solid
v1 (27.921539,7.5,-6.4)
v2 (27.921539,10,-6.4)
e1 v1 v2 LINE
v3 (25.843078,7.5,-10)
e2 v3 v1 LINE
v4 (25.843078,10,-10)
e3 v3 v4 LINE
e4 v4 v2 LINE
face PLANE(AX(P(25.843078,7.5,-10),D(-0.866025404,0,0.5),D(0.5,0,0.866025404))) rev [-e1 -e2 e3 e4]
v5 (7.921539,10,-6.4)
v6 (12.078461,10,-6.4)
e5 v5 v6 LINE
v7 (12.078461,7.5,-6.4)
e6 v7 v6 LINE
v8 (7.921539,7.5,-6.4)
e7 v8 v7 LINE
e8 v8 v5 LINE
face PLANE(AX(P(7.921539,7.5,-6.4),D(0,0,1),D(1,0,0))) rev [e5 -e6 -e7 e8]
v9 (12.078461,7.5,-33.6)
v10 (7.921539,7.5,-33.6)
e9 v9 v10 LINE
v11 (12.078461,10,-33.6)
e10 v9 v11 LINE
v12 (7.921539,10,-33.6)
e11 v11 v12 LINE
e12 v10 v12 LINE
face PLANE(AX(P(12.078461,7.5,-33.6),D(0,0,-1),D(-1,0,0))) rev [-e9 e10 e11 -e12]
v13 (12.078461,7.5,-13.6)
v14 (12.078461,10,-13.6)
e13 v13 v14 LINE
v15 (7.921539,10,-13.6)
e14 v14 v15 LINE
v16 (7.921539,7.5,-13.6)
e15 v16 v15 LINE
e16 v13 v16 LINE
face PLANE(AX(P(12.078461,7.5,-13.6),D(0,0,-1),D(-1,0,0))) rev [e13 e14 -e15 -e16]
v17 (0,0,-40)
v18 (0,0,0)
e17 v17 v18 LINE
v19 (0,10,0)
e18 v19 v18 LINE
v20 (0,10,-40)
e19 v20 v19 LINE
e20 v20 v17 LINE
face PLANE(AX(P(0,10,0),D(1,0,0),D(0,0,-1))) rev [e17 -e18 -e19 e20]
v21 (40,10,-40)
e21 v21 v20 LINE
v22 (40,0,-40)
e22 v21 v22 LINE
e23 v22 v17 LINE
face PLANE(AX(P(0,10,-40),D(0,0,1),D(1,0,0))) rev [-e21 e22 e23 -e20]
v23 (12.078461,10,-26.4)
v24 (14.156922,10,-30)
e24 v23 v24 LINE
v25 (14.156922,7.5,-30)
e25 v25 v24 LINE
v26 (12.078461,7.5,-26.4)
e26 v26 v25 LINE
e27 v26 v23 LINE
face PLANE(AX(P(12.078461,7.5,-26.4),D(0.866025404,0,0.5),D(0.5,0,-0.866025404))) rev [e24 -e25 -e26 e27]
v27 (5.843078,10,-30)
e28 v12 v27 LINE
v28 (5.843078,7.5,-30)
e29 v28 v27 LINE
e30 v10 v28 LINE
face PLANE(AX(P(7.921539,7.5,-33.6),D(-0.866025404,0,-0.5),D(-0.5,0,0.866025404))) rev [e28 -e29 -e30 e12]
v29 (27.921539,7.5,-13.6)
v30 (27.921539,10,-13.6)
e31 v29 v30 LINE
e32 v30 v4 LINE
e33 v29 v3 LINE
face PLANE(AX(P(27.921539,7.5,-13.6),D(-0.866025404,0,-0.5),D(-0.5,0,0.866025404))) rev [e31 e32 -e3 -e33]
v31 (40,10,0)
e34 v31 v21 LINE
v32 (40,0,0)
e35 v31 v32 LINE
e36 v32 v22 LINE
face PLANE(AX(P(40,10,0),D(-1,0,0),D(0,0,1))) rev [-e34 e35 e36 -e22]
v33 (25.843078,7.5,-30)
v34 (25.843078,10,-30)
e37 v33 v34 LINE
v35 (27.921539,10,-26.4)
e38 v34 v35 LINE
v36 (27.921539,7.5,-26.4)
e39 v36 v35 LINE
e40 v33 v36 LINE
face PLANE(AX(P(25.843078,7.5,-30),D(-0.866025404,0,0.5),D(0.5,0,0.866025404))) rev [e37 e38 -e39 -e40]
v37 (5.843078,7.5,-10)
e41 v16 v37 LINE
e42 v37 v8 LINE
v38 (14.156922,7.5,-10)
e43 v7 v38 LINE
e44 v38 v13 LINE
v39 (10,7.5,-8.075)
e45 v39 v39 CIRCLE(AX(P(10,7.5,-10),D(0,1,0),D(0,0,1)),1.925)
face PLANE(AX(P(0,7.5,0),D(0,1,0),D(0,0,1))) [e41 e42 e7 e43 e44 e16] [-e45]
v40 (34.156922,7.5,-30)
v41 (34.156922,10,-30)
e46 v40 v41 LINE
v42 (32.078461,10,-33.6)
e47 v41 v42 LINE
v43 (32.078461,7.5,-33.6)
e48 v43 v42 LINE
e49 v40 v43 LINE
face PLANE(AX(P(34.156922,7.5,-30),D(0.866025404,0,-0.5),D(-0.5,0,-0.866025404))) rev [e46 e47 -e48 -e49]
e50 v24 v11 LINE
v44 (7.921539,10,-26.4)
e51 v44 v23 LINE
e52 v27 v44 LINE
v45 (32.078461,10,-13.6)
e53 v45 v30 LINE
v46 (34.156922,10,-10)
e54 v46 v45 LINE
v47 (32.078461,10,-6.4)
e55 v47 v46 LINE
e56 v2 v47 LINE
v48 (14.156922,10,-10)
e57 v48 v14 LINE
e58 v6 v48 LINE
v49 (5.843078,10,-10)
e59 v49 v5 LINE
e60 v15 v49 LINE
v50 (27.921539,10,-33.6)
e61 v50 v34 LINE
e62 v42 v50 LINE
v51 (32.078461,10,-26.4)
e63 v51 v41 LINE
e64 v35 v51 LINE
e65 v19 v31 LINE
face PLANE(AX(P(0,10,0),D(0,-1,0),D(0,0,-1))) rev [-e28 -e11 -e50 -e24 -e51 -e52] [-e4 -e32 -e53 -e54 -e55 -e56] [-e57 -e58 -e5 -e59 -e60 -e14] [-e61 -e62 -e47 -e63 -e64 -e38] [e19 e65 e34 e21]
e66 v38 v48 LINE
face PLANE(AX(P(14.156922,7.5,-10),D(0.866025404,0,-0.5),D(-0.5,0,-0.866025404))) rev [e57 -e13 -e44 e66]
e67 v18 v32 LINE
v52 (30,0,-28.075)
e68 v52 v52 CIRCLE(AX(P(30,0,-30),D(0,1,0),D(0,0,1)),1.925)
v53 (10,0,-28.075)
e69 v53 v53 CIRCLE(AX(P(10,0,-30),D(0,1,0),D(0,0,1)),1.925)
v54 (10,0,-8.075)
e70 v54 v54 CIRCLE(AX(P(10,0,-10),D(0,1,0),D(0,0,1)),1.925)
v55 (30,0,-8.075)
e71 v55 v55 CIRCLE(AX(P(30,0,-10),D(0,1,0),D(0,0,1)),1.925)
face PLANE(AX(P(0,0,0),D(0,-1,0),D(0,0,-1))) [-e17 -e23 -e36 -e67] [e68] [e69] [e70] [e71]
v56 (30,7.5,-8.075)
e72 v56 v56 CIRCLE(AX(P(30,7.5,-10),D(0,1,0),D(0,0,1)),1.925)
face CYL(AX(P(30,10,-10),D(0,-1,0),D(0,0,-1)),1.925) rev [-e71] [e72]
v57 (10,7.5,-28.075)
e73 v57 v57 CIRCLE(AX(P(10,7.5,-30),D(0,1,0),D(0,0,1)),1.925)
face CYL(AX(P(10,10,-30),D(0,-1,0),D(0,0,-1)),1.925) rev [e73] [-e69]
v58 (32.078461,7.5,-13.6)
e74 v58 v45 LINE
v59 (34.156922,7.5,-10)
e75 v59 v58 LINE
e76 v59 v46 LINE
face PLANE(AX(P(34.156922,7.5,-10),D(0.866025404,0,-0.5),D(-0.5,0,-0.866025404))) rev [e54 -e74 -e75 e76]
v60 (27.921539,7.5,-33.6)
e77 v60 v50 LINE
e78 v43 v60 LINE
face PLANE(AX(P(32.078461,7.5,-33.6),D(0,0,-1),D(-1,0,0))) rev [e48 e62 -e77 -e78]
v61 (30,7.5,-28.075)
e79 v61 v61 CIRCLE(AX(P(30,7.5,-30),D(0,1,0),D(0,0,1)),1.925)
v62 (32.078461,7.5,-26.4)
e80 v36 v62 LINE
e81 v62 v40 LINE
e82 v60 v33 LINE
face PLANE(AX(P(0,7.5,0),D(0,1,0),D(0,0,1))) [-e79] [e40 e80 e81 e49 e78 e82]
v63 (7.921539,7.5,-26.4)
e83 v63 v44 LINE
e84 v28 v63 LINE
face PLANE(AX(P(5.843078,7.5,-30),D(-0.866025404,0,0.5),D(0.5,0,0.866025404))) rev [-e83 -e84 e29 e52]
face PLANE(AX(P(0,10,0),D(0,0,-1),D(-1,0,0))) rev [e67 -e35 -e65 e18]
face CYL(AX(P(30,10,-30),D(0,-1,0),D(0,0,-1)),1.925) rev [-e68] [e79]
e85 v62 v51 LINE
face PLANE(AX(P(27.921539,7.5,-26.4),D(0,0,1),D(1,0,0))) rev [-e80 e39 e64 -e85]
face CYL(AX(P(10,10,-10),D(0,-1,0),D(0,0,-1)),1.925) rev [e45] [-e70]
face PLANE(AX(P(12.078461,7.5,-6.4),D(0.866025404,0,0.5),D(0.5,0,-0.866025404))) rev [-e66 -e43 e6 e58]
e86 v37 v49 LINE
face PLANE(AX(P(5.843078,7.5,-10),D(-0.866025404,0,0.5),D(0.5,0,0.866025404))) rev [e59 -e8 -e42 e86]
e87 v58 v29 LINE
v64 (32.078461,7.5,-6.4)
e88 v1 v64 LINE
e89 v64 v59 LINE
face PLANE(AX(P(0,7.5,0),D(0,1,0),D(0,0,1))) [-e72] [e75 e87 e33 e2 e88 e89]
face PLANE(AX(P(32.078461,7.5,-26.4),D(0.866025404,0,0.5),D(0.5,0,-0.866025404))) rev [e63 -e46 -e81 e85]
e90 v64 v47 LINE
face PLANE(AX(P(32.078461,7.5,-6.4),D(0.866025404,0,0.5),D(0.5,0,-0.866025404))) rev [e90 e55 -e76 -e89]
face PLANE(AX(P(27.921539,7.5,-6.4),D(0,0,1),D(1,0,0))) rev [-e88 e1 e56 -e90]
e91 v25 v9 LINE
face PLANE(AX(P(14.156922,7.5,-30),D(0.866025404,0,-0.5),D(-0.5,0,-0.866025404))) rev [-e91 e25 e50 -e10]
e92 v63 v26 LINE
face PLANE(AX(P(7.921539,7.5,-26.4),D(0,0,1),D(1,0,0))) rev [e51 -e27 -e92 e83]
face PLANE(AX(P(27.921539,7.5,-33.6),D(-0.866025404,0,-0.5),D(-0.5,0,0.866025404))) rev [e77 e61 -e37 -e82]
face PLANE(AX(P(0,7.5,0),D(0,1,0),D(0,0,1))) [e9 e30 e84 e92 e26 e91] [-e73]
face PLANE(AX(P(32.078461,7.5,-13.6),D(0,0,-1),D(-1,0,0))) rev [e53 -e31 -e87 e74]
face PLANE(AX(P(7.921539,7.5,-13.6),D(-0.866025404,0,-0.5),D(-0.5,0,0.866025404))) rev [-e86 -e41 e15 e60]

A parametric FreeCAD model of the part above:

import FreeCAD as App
import Part
import Sketcher

V = App.Vector
Q = App.Units.Quantity

doc = App.newDocument("Part")
body = doc.addObject("PartDesign::Body", "Body")

sketch1 = doc.addObject("Sketcher::SketchObject", "Sketch")
body.addObject(sketch1)
sketch1.AttachmentSupport = (doc.XZ_Plane, [""])
sketch1.MapMode = "FlatFace"
sketch1.addGeometry(Part.LineSegment(V(0, -40, 0), V(0, 0, 0)), False)
sketch1.addGeometry(Part.LineSegment(V(0, 0, 0), V(40, 0, 0)), False)
sketch1.addGeometry(Part.LineSegment(V(40, 0, 0), V(40, -40, 0)), False)
sketch1.addGeometry(Part.LineSegment(V(40, -40, 0), V(0, -40, 0)), False)
sketch1.addGeometry(Part.Circle(V(10, -10, 0), V(0, 0, 1), 1.9), False)
sketch1.addGeometry(Part.Circle(V(30, -10, 0), V(0, 0, 1), 1.9), False)
sketch1.addGeometry(Part.Circle(V(10, -30, 0), V(0, 0, 1), 1.9), False)
sketch1.addGeometry(Part.Circle(V(30, -30, 0), V(0, 0, 1), 1.9), False)
sketch1.addConstraint(Sketcher.Constraint("Coincident", 0, 2, 1, 1))
sketch1.addConstraint(Sketcher.Constraint("Coincident", 1, 2, 2, 1))
sketch1.addConstraint(Sketcher.Constraint("Coincident", 2, 2, 3, 1))
sketch1.addConstraint(Sketcher.Constraint("Coincident", 3, 2, 0, 1))
sketch1.addConstraint(Sketcher.Constraint("Vertical", 0))
sketch1.addConstraint(Sketcher.Constraint("Horizontal", 1))
sketch1.addConstraint(Sketcher.Constraint("Vertical", 2))
sketch1.addConstraint(Sketcher.Constraint("Horizontal", 3))
sketch1.addConstraint(Sketcher.Constraint("Coincident", 0, 2, -1, 1))
sketch1.addConstraint(Sketcher.Constraint("Equal", 4, 5))
sketch1.addConstraint(Sketcher.Constraint("Equal", 5, 6))
sketch1.addConstraint(Sketcher.Constraint("Equal", 6, 7))
sketch1.addConstraint(Sketcher.Constraint("Horizontal", 4, 3, 5, 3))
sketch1.addConstraint(Sketcher.Constraint("Horizontal", 6, 3, 7, 3))
sketch1.addConstraint(Sketcher.Constraint("Vertical", 4, 3, 6, 3))
sketch1.addConstraint(Sketcher.Constraint("Vertical", 5, 3, 7, 3))
sketch1.addConstraint(Sketcher.Constraint("Equal", 3, 0))
sketch1.addConstraint(Sketcher.Constraint("Diameter", 4, 3.85))
sketch1.addConstraint(Sketcher.Constraint("DistanceX", 1, 1, 1, 2, 40.0))
sketch1.addConstraint(Sketcher.Constraint("DistanceX", -1, 1, 4, 3, 10.0))
sketch1.addConstraint(Sketcher.Constraint("DistanceY", 4, 3, -1, 1, 10.0))
sketch1.addConstraint(Sketcher.Constraint("DistanceX", -1, 1, 5, 3, 30.0))
sketch1.addConstraint(Sketcher.Constraint("DistanceY", 6, 3, -1, 1, 30.0))
pad1 = doc.addObject("PartDesign::Pad", "Pad")
body.addObject(pad1)
pad1.Profile = sketch1
pad1.Length = 10
pad1.Reversed = True

sketch2 = doc.addObject("Sketcher::SketchObject", "Sketch001")
body.addObject(sketch2)
sketch2.AttachmentSupport = (doc.XZ_Plane, [""])
sketch2.MapMode = "FlatFace"
sketch2.AttachmentOffset = App.Placement(V(0, 0, -10), App.Rotation())
sketch2.addGeometry(Part.LineSegment(V(14.2, -10, 0), V(12.1, -13.6, 0)), False)
sketch2.addGeometry(Part.LineSegment(V(12.1, -13.6, 0), V(7.9, -13.6, 0)), False)
sketch2.addGeometry(Part.LineSegment(V(7.9, -13.6, 0), V(5.8, -10, 0)), False)
sketch2.addGeometry(Part.LineSegment(V(5.8, -10, 0), V(7.9, -6.4, 0)), False)
sketch2.addGeometry(Part.LineSegment(V(7.9, -6.4, 0), V(12.1, -6.4, 0)), False)
sketch2.addGeometry(Part.LineSegment(V(12.1, -6.4, 0), V(14.2, -10, 0)), False)
sketch2.addGeometry(Part.LineSegment(V(25.8, -10, 0), V(27.9, -6.4, 0)), False)
sketch2.addGeometry(Part.LineSegment(V(27.9, -6.4, 0), V(32.1, -6.4, 0)), False)
sketch2.addGeometry(Part.LineSegment(V(32.1, -6.4, 0), V(34.2, -10, 0)), False)
sketch2.addGeometry(Part.LineSegment(V(34.2, -10, 0), V(32.1, -13.6, 0)), False)
sketch2.addGeometry(Part.LineSegment(V(32.1, -13.6, 0), V(27.9, -13.6, 0)), False)
sketch2.addGeometry(Part.LineSegment(V(27.9, -13.6, 0), V(25.8, -10, 0)), False)
sketch2.addGeometry(Part.LineSegment(V(25.8, -30, 0), V(27.9, -26.4, 0)), False)
sketch2.addGeometry(Part.LineSegment(V(27.9, -26.4, 0), V(32.1, -26.4, 0)), False)
sketch2.addGeometry(Part.LineSegment(V(32.1, -26.4, 0), V(34.2, -30, 0)), False)
sketch2.addGeometry(Part.LineSegment(V(34.2, -30, 0), V(32.1, -33.6, 0)), False)
sketch2.addGeometry(Part.LineSegment(V(32.1, -33.6, 0), V(27.9, -33.6, 0)), False)
sketch2.addGeometry(Part.LineSegment(V(27.9, -33.6, 0), V(25.8, -30, 0)), False)
sketch2.addGeometry(Part.LineSegment(V(14.2, -30, 0), V(12.1, -33.6, 0)), False)
sketch2.addGeometry(Part.LineSegment(V(12.1, -33.6, 0), V(7.9, -33.6, 0)), False)
sketch2.addGeometry(Part.LineSegment(V(7.9, -33.6, 0), V(5.8, -30, 0)), False)
sketch2.addGeometry(Part.LineSegment(V(5.8, -30, 0), V(7.9, -26.4, 0)), False)
sketch2.addGeometry(Part.LineSegment(V(7.9, -26.4, 0), V(12.1, -26.4, 0)), False)
sketch2.addGeometry(Part.LineSegment(V(12.1, -26.4, 0), V(14.2, -30, 0)), False)
sketch2.addConstraint(Sketcher.Constraint("Coincident", 0, 2, 1, 1))
sketch2.addConstraint(Sketcher.Constraint("Coincident", 1, 2, 2, 1))
sketch2.addConstraint(Sketcher.Constraint("Coincident", 2, 2, 3, 1))
sketch2.addConstraint(Sketcher.Constraint("Coincident", 3, 2, 4, 1))
sketch2.addConstraint(Sketcher.Constraint("Coincident", 4, 2, 5, 1))
sketch2.addConstraint(Sketcher.Constraint("Coincident", 5, 2, 0, 1))
sketch2.addConstraint(Sketcher.Constraint("Coincident", 6, 2, 7, 1))
sketch2.addConstraint(Sketcher.Constraint("Coincident", 7, 2, 8, 1))
sketch2.addConstraint(Sketcher.Constraint("Coincident", 8, 2, 9, 1))
sketch2.addConstraint(Sketcher.Constraint("Coincident", 9, 2, 10, 1))
sketch2.addConstraint(Sketcher.Constraint("Coincident", 10, 2, 11, 1))
sketch2.addConstraint(Sketcher.Constraint("Coincident", 11, 2, 6, 1))
sketch2.addConstraint(Sketcher.Constraint("Coincident", 12, 2, 13, 1))
sketch2.addConstraint(Sketcher.Constraint("Coincident", 13, 2, 14, 1))
sketch2.addConstraint(Sketcher.Constraint("Coincident", 14, 2, 15, 1))
sketch2.addConstraint(Sketcher.Constraint("Coincident", 15, 2, 16, 1))
sketch2.addConstraint(Sketcher.Constraint("Coincident", 16, 2, 17, 1))
sketch2.addConstraint(Sketcher.Constraint("Coincident", 17, 2, 12, 1))
sketch2.addConstraint(Sketcher.Constraint("Coincident", 18, 2, 19, 1))
sketch2.addConstraint(Sketcher.Constraint("Coincident", 19, 2, 20, 1))
sketch2.addConstraint(Sketcher.Constraint("Coincident", 20, 2, 21, 1))
sketch2.addConstraint(Sketcher.Constraint("Coincident", 21, 2, 22, 1))
sketch2.addConstraint(Sketcher.Constraint("Coincident", 22, 2, 23, 1))
sketch2.addConstraint(Sketcher.Constraint("Coincident", 23, 2, 18, 1))
sketch2.addConstraint(Sketcher.Constraint("Horizontal", 1))
sketch2.addConstraint(Sketcher.Constraint("Horizontal", 4))
sketch2.addConstraint(Sketcher.Constraint("Horizontal", 7))
sketch2.addConstraint(Sketcher.Constraint("Horizontal", 10))
sketch2.addConstraint(Sketcher.Constraint("Horizontal", 13))
sketch2.addConstraint(Sketcher.Constraint("Horizontal", 16))
sketch2.addConstraint(Sketcher.Constraint("Horizontal", 19))
sketch2.addConstraint(Sketcher.Constraint("Horizontal", 22))
sketch2.addConstraint(Sketcher.Constraint("Parallel", 0, 3))
sketch2.addConstraint(Sketcher.Constraint("Parallel", 2, 5))
sketch2.addConstraint(Sketcher.Constraint("Parallel", 3, 6))
sketch2.addConstraint(Sketcher.Constraint("Parallel", 5, 8))
sketch2.addConstraint(Sketcher.Constraint("Parallel", 6, 9))
sketch2.addConstraint(Sketcher.Constraint("Parallel", 8, 11))
sketch2.addConstraint(Sketcher.Constraint("Parallel", 9, 12))
sketch2.addConstraint(Sketcher.Constraint("Parallel", 11, 14))
sketch2.addConstraint(Sketcher.Constraint("Parallel", 12, 15))
sketch2.addConstraint(Sketcher.Constraint("Parallel", 14, 17))
sketch2.addConstraint(Sketcher.Constraint("Parallel", 15, 18))
sketch2.addConstraint(Sketcher.Constraint("Parallel", 17, 20))
sketch2.addConstraint(Sketcher.Constraint("Parallel", 18, 21))
sketch2.addConstraint(Sketcher.Constraint("Parallel", 20, 23))
sketch2.addConstraint(Sketcher.Constraint("Horizontal", 2, 2, 5, 2))
sketch2.addConstraint(Sketcher.Constraint("Horizontal", 4, 2, 6, 2))
sketch2.addConstraint(Sketcher.Constraint("Horizontal", 5, 2, 8, 2))
sketch2.addConstraint(Sketcher.Constraint("Horizontal", 1, 2, 9, 2))
sketch2.addConstraint(Sketcher.Constraint("Horizontal", 8, 2, 11, 2))
sketch2.addConstraint(Sketcher.Constraint("Horizontal", 14, 2, 17, 2))
sketch2.addConstraint(Sketcher.Constraint("Horizontal", 16, 2, 18, 2))
sketch2.addConstraint(Sketcher.Constraint("Horizontal", 17, 2, 20, 2))
sketch2.addConstraint(Sketcher.Constraint("Horizontal", 13, 2, 21, 2))
sketch2.addConstraint(Sketcher.Constraint("Horizontal", 20, 2, 23, 2))
sketch2.addConstraint(Sketcher.Constraint("Vertical", 1, 2, 3, 2))
sketch2.addConstraint(Sketcher.Constraint("Vertical", 0, 2, 4, 2))
sketch2.addConstraint(Sketcher.Constraint("Vertical", 10, 2, 12, 2))
sketch2.addConstraint(Sketcher.Constraint("Vertical", 9, 2, 13, 2))
sketch2.addConstraint(Sketcher.Constraint("Vertical", 8, 2, 14, 2))
sketch2.addConstraint(Sketcher.Constraint("Vertical", 13, 2, 15, 2))
sketch2.addConstraint(Sketcher.Constraint("Vertical", 4, 2, 18, 2))
sketch2.addConstraint(Sketcher.Constraint("Vertical", 3, 2, 19, 2))
sketch2.addConstraint(Sketcher.Constraint("Equal", 4, 7))
sketch2.addConstraint(Sketcher.Constraint("Angle", 0, Q("-120 deg")))
sketch2.addConstraint(Sketcher.Constraint("DistanceY", 2, 2, -1, 1, 10.0))
sketch2.addConstraint(Sketcher.Constraint("DistanceY", 14, 2, -1, 1, 30.0))
sketch2.addConstraint(Sketcher.Constraint("DistanceX", 3, 2, 6, 2, 20.0))
sketch2.addConstraint(Sketcher.Constraint("DistanceY", 0, 2, -1, 1, 13.6))
sketch2.addConstraint(Sketcher.Constraint("DistanceX", 1, 2, 1, 1, 4.156922))
sketch2.addConstraint(Sketcher.Constraint("DistanceX", -1, 1, 0, 2, 12.078461))
pocket1 = doc.addObject("PartDesign::Pocket", "Pocket")
body.addObject(pocket1)
pocket1.Profile = sketch2
pocket1.Length = 2.5
pocket1.Reversed = True

doc.recompute()
